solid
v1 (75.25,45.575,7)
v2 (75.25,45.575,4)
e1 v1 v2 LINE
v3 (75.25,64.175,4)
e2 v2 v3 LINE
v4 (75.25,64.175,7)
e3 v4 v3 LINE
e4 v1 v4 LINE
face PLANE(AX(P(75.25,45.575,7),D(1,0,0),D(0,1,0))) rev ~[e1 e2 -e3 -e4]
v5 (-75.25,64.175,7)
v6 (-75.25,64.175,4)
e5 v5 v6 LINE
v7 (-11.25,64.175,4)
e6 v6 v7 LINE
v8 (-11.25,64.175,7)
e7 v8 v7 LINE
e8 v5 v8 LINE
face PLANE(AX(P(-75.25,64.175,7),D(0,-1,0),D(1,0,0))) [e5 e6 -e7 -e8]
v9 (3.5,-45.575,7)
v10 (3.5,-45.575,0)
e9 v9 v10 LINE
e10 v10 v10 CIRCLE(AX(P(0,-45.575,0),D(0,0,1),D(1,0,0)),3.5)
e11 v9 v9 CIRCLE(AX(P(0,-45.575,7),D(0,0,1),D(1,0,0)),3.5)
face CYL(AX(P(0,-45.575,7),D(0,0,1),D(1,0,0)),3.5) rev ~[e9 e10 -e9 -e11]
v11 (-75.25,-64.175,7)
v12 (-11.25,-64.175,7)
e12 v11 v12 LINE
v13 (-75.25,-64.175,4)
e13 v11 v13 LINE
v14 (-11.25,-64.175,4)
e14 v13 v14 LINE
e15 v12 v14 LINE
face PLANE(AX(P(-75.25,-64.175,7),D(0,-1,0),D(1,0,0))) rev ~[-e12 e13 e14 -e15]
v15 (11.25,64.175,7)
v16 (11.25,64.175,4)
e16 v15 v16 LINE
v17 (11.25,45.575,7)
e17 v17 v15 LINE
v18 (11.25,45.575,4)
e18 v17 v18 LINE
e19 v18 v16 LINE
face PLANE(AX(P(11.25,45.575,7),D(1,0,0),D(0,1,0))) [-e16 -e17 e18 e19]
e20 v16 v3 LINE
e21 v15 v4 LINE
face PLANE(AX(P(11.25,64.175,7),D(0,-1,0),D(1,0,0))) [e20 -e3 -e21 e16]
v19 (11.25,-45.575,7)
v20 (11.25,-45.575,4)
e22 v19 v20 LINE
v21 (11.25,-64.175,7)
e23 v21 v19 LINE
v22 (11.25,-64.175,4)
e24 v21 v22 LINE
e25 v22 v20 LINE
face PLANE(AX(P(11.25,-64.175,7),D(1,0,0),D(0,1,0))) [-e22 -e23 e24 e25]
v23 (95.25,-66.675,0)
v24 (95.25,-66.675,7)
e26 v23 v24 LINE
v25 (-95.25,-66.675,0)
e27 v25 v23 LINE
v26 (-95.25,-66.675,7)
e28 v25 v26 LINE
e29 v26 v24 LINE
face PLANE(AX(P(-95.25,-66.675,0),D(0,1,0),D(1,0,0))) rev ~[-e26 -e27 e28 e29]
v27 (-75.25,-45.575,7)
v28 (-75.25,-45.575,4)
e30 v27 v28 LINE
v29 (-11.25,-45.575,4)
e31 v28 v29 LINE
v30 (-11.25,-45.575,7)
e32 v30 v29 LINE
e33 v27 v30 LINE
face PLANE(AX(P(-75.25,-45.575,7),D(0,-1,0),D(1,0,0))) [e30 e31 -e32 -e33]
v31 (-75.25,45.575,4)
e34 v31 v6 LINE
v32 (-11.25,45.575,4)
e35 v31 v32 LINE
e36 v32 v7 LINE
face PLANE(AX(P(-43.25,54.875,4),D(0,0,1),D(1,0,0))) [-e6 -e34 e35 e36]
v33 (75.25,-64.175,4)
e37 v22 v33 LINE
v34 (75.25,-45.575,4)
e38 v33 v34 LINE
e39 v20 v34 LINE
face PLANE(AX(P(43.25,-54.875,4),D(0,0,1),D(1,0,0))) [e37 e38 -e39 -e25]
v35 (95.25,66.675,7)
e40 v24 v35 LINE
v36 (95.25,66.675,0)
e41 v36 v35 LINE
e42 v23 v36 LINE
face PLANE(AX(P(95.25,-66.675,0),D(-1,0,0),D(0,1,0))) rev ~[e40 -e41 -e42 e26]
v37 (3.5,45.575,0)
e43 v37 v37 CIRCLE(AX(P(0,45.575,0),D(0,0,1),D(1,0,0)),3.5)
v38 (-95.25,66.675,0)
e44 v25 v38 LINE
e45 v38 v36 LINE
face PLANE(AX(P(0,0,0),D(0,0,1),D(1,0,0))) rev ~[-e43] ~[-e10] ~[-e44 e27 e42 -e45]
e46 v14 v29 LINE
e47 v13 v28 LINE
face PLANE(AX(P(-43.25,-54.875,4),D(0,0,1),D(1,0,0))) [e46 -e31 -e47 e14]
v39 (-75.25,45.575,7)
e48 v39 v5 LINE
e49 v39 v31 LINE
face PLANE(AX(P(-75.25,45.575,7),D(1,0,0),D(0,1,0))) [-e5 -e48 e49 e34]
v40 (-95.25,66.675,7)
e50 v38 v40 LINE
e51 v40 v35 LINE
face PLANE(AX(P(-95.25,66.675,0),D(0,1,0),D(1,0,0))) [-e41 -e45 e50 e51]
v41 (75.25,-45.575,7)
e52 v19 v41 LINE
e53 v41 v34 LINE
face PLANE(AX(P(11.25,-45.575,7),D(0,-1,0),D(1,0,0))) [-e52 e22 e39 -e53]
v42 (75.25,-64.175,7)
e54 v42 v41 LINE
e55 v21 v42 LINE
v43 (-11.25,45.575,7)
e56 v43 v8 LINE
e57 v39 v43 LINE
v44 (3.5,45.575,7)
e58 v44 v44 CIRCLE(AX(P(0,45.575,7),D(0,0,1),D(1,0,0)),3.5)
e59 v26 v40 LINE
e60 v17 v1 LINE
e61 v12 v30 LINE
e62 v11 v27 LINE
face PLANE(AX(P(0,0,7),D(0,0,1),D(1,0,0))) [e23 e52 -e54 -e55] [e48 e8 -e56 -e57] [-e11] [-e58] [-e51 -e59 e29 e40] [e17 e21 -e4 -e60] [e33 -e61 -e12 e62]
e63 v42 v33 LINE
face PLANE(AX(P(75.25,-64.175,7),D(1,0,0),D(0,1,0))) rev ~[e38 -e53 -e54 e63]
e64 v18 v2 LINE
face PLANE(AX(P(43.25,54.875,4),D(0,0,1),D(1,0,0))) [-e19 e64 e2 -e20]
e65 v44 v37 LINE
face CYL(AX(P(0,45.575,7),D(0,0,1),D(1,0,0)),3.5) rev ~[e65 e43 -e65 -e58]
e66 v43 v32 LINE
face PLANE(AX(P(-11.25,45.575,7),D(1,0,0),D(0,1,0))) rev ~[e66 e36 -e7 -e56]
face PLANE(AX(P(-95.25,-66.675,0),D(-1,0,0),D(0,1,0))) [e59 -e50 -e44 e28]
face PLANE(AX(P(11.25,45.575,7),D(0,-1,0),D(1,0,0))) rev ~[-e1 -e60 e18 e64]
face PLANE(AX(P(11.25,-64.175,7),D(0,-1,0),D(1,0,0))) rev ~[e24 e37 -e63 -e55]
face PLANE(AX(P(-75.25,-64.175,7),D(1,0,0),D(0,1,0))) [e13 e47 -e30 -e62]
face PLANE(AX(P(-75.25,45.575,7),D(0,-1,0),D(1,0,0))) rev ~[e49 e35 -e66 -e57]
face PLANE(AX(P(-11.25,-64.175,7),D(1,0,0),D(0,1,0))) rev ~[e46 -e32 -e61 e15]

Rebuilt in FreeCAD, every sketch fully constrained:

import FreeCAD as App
import Part
import Sketcher

V = App.Vector
Q = App.Units.Quantity


def add_polygon(sketch, points):
    """Adds a closed chain of lines whose ends are joined by coincident constraints."""
    first, n = sketch.GeometryCount, len(points)
    for a, b in zip(points, points[1:] + points[:1]):
        sketch.addGeometry(Part.LineSegment(App.Vector(*a, 0), App.Vector(*b, 0)), False)
    for i in range(n):
        sketch.addConstraint(Sketcher.Constraint("Coincident", first + i, 2, first + (i + 1) % n, 1))

doc = App.newDocument("Part")
params = doc.addObject("Spreadsheet::Sheet", "Params")
for row, (alias, value) in enumerate([
    ("sketch1_width", "190.5 mm"),
    ("sketch1_height", "133.35 mm"),
    ("pad1_length", "7 mm"),
    ("sketch2_width", "64 mm"),
    ("sketch2_height", "18.6 mm"),
    ("pocket1_length", "3 mm"),
    ("sketch3_diameter", "7 mm"),
    ("pocket2_length", "25 mm"),
], start=1):
    params.set(f"A{row}", alias)
    params.set(f"B{row}", "=" + value)
    params.setAlias(f"B{row}", alias)

body = doc.addObject("PartDesign::Body", "Body")

# Sketch on XY plane
sketch1 = body.newObject("Sketcher::SketchObject", "Sketch")
sketch1.AttachmentSupport = (doc.getObject("XY_Plane"), [""])
sketch1.MapMode = "FlatFace"
add_polygon(sketch1, [(-95.25, 66.675), (-95.25, -66.675), (95.25, -66.675), (95.25, 66.675)])  # lines 0-3
sketch1.addConstraint([
    Sketcher.Constraint("Vertical", 0),
    Sketcher.Constraint("Horizontal", 1),
    Sketcher.Constraint("Vertical", 2),
    Sketcher.Constraint("Horizontal", 3),
    Sketcher.Constraint("Symmetric", 0, 2, 2, 2, -1, 1),
    Sketcher.Constraint("DistanceX", 1, 1, 1, 2, Q("190.5 mm")),
    Sketcher.Constraint("DistanceY", 0, 2, 0, 1, Q("133.35 mm")),
])
sketch1.setExpression("Constraints[9]", "Params.sketch1_width")
sketch1.setExpression("Constraints[10]", "Params.sketch1_height")
pad1 = body.newObject("PartDesign::Pad", "Pad")
pad1.Profile = sketch1
pad1.setExpression("Length", "Params.pad1_length")

# Sketch on XY plane
sketch2 = body.newObject("Sketcher::SketchObject", "Sketch001")
sketch2.AttachmentSupport = (doc.getObject("XY_Plane"), [""])
sketch2.MapMode = "FlatFace"
sketch2.AttachmentOffset = App.Placement(V(0, 0, 7), App.Rotation())
add_polygon(sketch2, [(-75.25, 64.175), (-75.25, 45.575), (-11.25, 45.575), (-11.25, 64.175)])  # lines 0-3
add_polygon(sketch2, [(11.25, 64.175), (11.25, 45.575), (75.25, 45.575), (75.25, 64.175)])  # lines 4-7
add_polygon(sketch2, [(11.25, -45.575), (11.25, -64.175), (75.25, -64.175), (75.25, -45.575)])  # lines 8-11
add_polygon(sketch2, [(-75.25, -45.575), (-75.25, -64.175), (-11.25, -64.175), (-11.25, -45.575)])  # lines 12-15
sketch2.addConstraint([
    Sketcher.Constraint("Vertical", 0),
    Sketcher.Constraint("Horizontal", 1),
    Sketcher.Constraint("Vertical", 2),
    Sketcher.Constraint("Horizontal", 3),
    Sketcher.Constraint("Vertical", 4),
    Sketcher.Constraint("Horizontal", 5),
    Sketcher.Constraint("Vertical", 6),
    Sketcher.Constraint("Horizontal", 7),
    Sketcher.Constraint("Vertical", 8),
    Sketcher.Constraint("Horizontal", 9),
    Sketcher.Constraint("Vertical", 10),
    Sketcher.Constraint("Horizontal", 11),
    Sketcher.Constraint("Vertical", 12),
    Sketcher.Constraint("Horizontal", 13),
    Sketcher.Constraint("Vertical", 14),
    Sketcher.Constraint("Horizontal", 15),
    Sketcher.Constraint("Symmetric", 2, 2, 8, 2, -1, 1),
    Sketcher.Constraint("Symmetric", 0, 2, 10, 2, -1, 1),
    Sketcher.Constraint("Symmetric", 6, 2, 12, 2, -1, 1),
    Sketcher.Constraint("Symmetric", 4, 2, 14, 2, -1, 1),
    Sketcher.Constraint("Symmetric", 1, 2, 4, 2, -2),
    Sketcher.Constraint("Symmetric", 3, 2, 6, 2, -2),
    Sketcher.Constraint("DistanceX", 1, 1, 1, 2, Q("64 mm")),
    Sketcher.Constraint("DistanceY", 0, 2, 0, 1, Q("18.6 mm")),
    Sketcher.Constraint("DistanceX", 1, 2, 4, 2, Q("22.5 mm")),
    Sketcher.Constraint("DistanceY", 8, 2, 4, 2, Q("109.75 mm")),
])
sketch2.setExpression("Constraints[38]", "Params.sketch2_width")
sketch2.setExpression("Constraints[39]", "Params.sketch2_height")
pocket1 = body.newObject("PartDesign::Pocket", "Pocket")
pocket1.Profile = sketch2
pocket1.setExpression("Length", "Params.pocket1_length")

# Sketch on XY plane
sketch3 = body.newObject("Sketcher::SketchObject", "Sketch002")
sketch3.AttachmentSupport = (doc.getObject("XY_Plane"), [""])
sketch3.MapMode = "FlatFace"
sketch3.AttachmentOffset = App.Placement(V(0, 0, 7), App.Rotation())
sketch3.addGeometry([
    Part.Circle(V(0, -45.575, 0), V(0, 0, 1), 3.5),
    Part.Circle(V(0, 45.575, 0), V(0, 0, 1), 3.5),
], False)
sketch3.addConstraint([
    Sketcher.Constraint("Equal", 0, 1),
    Sketcher.Constraint("Symmetric", 0, 3, 1, 3, -1, 1),
    Sketcher.Constraint("PointOnObject", 0, 3, -2),
    Sketcher.Constraint("Diameter", 0, Q("7 mm")),
    Sketcher.Constraint("DistanceY", 0, 3, 1, 3, Q("91.15 mm")),
])
sketch3.setExpression("Constraints[3]", "Params.sketch3_diameter")
pocket2 = body.newObject("PartDesign::Pocket", "Pocket001")
pocket2.Profile = sketch3
pocket2.setExpression("Length", "Params.pocket2_length")

doc.recompute()
